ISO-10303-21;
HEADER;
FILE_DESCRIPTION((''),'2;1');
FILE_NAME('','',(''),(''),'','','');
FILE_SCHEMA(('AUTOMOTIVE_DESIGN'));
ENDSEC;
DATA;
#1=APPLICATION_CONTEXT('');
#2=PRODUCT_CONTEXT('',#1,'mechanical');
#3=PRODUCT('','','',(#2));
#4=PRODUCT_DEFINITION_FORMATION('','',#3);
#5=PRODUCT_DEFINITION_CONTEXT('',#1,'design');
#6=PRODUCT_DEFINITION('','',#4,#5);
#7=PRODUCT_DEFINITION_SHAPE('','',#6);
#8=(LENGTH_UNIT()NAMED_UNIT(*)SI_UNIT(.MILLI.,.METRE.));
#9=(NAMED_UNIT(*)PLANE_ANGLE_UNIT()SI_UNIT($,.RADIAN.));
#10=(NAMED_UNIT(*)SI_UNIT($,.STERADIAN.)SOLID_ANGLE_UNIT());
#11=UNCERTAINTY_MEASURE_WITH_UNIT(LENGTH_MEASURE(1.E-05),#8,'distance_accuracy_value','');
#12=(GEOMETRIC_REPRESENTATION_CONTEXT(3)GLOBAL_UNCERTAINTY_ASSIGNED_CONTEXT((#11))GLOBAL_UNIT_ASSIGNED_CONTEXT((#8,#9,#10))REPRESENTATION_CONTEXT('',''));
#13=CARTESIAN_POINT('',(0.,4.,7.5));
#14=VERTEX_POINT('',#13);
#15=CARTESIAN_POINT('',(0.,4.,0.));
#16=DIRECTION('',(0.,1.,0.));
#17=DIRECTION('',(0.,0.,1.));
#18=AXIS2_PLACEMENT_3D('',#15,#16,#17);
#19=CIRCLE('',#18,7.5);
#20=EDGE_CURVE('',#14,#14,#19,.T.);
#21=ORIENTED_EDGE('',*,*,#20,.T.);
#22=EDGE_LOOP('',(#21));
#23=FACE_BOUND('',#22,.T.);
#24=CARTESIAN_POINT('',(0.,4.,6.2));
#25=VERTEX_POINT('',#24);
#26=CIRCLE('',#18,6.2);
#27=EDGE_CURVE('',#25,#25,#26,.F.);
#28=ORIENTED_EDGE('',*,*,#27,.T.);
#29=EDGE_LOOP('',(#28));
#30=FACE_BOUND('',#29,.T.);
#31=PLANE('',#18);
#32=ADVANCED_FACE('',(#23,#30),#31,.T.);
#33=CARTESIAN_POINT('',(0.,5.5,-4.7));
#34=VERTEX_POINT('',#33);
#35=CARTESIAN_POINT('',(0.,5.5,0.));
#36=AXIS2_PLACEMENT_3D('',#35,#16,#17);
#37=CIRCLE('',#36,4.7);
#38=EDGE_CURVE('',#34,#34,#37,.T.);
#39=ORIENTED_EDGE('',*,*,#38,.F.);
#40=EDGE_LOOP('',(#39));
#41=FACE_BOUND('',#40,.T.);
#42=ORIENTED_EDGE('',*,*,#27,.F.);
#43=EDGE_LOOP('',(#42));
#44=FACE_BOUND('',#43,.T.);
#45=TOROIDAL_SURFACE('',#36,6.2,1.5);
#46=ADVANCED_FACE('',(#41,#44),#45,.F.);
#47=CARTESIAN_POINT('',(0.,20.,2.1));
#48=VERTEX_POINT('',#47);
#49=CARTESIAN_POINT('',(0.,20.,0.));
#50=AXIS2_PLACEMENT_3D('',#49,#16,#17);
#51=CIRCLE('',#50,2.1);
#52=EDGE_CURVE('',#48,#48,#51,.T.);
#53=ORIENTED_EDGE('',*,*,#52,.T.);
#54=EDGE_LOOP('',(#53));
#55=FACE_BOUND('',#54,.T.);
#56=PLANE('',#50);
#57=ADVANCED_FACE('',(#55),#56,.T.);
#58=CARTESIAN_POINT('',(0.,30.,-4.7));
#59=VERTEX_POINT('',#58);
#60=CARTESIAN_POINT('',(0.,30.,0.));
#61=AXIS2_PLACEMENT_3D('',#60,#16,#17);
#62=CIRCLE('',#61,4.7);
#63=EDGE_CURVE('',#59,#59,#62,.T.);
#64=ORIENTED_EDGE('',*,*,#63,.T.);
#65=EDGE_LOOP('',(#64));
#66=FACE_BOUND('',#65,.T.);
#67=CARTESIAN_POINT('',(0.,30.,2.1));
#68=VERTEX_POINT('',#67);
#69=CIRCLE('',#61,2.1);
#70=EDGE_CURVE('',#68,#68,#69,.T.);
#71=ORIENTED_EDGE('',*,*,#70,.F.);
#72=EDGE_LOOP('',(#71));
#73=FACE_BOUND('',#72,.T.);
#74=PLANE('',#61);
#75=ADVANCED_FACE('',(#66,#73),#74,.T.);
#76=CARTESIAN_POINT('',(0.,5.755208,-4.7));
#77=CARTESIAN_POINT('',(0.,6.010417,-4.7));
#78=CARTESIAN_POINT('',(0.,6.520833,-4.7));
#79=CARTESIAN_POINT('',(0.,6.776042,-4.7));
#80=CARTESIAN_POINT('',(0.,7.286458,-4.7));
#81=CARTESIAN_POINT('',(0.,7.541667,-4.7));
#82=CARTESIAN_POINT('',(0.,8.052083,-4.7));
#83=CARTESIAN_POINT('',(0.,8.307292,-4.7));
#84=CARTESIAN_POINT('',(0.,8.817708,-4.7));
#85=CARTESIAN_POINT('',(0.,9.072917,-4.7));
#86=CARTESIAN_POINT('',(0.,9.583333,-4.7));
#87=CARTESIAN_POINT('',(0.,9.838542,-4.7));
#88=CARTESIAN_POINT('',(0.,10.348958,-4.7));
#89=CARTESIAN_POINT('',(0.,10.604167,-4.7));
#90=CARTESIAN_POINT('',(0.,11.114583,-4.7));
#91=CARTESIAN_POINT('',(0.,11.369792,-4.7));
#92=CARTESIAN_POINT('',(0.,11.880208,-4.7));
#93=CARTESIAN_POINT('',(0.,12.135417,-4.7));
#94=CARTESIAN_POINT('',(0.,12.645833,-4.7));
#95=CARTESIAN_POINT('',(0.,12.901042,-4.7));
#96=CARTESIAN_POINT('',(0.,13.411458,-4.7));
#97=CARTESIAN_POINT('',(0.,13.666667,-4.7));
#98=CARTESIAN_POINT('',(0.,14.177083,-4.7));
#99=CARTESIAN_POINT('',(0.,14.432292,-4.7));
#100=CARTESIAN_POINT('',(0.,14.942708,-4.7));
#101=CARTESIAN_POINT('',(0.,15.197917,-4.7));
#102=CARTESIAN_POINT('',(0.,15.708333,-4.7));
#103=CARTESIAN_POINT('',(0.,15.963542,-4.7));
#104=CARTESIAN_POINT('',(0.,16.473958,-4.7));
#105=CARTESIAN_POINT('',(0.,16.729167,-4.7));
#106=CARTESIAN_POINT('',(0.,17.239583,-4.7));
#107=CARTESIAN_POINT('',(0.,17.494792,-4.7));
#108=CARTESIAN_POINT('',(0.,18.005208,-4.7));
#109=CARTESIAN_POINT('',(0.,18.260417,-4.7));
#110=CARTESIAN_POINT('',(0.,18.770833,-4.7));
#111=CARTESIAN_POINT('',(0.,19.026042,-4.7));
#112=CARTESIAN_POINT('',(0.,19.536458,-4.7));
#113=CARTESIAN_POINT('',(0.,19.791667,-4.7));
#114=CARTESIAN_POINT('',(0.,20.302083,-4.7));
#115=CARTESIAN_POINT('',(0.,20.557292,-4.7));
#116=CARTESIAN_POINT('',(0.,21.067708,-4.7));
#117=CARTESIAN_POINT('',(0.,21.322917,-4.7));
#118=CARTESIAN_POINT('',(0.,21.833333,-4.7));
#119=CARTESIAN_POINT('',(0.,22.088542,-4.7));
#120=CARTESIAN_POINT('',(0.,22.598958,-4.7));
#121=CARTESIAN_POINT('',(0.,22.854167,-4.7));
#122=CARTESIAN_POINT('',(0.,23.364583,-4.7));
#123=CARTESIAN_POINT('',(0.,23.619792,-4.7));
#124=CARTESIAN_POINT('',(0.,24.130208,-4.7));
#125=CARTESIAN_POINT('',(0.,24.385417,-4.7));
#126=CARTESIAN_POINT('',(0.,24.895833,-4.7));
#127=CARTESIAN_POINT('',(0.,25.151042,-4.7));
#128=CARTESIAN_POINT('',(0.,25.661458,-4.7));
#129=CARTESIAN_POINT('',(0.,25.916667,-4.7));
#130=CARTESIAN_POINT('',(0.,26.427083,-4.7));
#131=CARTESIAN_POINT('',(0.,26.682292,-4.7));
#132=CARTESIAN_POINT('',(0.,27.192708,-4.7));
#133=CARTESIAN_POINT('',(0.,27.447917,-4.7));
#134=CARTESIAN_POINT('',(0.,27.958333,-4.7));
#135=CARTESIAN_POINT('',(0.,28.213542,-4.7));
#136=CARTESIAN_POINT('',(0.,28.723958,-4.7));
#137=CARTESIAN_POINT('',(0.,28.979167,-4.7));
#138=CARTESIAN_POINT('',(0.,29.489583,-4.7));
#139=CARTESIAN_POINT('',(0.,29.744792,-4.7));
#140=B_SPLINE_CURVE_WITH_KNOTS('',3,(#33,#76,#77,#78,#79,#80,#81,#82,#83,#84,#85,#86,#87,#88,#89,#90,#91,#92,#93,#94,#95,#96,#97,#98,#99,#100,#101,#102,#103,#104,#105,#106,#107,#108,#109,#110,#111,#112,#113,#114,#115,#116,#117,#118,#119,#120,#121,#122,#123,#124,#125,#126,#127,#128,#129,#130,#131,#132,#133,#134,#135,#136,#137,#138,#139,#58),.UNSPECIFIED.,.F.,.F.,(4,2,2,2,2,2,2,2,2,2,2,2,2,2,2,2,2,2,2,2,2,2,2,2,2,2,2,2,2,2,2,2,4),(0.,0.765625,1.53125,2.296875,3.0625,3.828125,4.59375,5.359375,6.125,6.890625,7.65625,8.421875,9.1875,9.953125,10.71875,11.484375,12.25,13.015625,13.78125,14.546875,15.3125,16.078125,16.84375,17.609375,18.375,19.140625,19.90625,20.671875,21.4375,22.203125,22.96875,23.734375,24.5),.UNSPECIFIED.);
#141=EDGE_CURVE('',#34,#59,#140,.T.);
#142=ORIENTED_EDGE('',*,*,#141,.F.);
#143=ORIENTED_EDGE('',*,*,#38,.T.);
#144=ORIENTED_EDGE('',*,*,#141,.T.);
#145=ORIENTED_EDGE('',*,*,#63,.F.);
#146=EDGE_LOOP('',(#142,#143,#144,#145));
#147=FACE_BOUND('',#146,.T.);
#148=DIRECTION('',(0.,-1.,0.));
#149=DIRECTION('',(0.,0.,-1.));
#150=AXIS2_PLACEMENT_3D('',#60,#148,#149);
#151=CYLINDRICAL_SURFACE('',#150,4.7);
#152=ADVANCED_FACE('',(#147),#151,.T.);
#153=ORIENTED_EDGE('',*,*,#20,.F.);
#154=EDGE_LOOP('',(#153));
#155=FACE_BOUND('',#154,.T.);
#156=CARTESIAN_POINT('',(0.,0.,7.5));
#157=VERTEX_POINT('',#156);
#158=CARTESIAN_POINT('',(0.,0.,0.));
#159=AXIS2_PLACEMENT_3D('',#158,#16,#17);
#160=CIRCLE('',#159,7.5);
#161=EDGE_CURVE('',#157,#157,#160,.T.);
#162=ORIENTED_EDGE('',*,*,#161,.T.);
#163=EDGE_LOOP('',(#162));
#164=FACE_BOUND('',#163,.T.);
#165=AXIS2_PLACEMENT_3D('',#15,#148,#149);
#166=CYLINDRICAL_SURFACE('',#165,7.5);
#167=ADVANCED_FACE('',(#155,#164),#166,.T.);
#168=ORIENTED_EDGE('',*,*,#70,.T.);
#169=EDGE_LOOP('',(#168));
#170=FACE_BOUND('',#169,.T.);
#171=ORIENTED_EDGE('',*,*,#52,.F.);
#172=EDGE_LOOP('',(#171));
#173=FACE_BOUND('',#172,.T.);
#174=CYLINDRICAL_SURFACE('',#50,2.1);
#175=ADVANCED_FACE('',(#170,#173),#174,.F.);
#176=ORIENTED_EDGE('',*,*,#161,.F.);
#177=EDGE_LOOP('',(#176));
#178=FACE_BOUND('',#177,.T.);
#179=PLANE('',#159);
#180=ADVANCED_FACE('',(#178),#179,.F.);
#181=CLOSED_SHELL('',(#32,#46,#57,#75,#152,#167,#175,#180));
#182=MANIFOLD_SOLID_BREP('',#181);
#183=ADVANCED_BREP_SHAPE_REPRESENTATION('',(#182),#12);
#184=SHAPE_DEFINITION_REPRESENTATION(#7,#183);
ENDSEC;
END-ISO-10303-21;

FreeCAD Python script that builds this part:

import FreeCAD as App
import Part
import Sketcher
from FreeCAD import Vector


def edges_at(feature, points):
    """Names of the edges that pass closest to the given points."""
    edges = feature.Shape.Edges
    near = lambda p: min(range(len(edges)), key=lambda i: edges[i].distToShape(Part.Vertex(*p))[0])
    return sorted({f"Edge{near(p) + 1}" for p in points})

doc = App.newDocument("Part")
body = doc.addObject("PartDesign::Body", "Body")

# Sketch on XZ plane
sketch1 = body.newObject("Sketcher::SketchObject", "Sketch")
sketch1.AttachmentSupport = (doc.getObject("XZ_Plane"), [""])
sketch1.MapMode = "FlatFace"
sketch1.addGeometry(Part.Circle(Vector(0, 0, 0), Vector(0, 0, 1), 8), False)
sketch1.addConstraint(Sketcher.Constraint("Coincident", 0, 3, -1, 1))
sketch1.addConstraint(Sketcher.Constraint("Diameter", 0, 15.0))
pad1 = body.newObject("PartDesign::Pad", "Pad")
pad1.Profile = sketch1
pad1.Length = 4
pad1.Reversed = True

# Sketch on XZ plane
sketch2 = body.newObject("Sketcher::SketchObject", "Sketch001")
sketch2.AttachmentSupport = (doc.getObject("XZ_Plane"), [""])
sketch2.MapMode = "FlatFace"
sketch2.AttachmentOffset = App.Placement(Vector(0, 0, -4), App.Rotation())
sketch2.addGeometry(Part.Circle(Vector(0, 0, 0), Vector(0, 0, 1), 4.7), False)
sketch2.addConstraint(Sketcher.Constraint("Coincident", 0, 3, -1, 1))
sketch2.addConstraint(Sketcher.Constraint("Diameter", 0, 9.4))
pad2 = body.newObject("PartDesign::Pad", "Pad001")
pad2.Profile = sketch2
pad2.Length = 26
pad2.Reversed = True

# Sketch on XZ plane
sketch3 = body.newObject("Sketcher::SketchObject", "Sketch002")
sketch3.AttachmentSupport = (doc.getObject("XZ_Plane"), [""])
sketch3.MapMode = "FlatFace"
sketch3.AttachmentOffset = App.Placement(Vector(0, 0, -30), App.Rotation())
sketch3.addGeometry(Part.Circle(Vector(0, 0, 0), Vector(0, 0, 1), 2.1), False)
sketch3.addConstraint(Sketcher.Constraint("Coincident", 0, 3, -1, 1))
sketch3.addConstraint(Sketcher.Constraint("Diameter", 0, 4.2))
pocket1 = body.newObject("PartDesign::Pocket", "Pocket")
pocket1.Profile = sketch3
pocket1.Length = 10
pocket1.Reversed = True
doc.recompute()

fillet = body.newObject("PartDesign::Fillet", "Fillet")
fillet.Base = (pocket1, edges_at(pocket1, [(0, 4, 4.7)]))
fillet.Radius = 1.5

doc.recompute()
